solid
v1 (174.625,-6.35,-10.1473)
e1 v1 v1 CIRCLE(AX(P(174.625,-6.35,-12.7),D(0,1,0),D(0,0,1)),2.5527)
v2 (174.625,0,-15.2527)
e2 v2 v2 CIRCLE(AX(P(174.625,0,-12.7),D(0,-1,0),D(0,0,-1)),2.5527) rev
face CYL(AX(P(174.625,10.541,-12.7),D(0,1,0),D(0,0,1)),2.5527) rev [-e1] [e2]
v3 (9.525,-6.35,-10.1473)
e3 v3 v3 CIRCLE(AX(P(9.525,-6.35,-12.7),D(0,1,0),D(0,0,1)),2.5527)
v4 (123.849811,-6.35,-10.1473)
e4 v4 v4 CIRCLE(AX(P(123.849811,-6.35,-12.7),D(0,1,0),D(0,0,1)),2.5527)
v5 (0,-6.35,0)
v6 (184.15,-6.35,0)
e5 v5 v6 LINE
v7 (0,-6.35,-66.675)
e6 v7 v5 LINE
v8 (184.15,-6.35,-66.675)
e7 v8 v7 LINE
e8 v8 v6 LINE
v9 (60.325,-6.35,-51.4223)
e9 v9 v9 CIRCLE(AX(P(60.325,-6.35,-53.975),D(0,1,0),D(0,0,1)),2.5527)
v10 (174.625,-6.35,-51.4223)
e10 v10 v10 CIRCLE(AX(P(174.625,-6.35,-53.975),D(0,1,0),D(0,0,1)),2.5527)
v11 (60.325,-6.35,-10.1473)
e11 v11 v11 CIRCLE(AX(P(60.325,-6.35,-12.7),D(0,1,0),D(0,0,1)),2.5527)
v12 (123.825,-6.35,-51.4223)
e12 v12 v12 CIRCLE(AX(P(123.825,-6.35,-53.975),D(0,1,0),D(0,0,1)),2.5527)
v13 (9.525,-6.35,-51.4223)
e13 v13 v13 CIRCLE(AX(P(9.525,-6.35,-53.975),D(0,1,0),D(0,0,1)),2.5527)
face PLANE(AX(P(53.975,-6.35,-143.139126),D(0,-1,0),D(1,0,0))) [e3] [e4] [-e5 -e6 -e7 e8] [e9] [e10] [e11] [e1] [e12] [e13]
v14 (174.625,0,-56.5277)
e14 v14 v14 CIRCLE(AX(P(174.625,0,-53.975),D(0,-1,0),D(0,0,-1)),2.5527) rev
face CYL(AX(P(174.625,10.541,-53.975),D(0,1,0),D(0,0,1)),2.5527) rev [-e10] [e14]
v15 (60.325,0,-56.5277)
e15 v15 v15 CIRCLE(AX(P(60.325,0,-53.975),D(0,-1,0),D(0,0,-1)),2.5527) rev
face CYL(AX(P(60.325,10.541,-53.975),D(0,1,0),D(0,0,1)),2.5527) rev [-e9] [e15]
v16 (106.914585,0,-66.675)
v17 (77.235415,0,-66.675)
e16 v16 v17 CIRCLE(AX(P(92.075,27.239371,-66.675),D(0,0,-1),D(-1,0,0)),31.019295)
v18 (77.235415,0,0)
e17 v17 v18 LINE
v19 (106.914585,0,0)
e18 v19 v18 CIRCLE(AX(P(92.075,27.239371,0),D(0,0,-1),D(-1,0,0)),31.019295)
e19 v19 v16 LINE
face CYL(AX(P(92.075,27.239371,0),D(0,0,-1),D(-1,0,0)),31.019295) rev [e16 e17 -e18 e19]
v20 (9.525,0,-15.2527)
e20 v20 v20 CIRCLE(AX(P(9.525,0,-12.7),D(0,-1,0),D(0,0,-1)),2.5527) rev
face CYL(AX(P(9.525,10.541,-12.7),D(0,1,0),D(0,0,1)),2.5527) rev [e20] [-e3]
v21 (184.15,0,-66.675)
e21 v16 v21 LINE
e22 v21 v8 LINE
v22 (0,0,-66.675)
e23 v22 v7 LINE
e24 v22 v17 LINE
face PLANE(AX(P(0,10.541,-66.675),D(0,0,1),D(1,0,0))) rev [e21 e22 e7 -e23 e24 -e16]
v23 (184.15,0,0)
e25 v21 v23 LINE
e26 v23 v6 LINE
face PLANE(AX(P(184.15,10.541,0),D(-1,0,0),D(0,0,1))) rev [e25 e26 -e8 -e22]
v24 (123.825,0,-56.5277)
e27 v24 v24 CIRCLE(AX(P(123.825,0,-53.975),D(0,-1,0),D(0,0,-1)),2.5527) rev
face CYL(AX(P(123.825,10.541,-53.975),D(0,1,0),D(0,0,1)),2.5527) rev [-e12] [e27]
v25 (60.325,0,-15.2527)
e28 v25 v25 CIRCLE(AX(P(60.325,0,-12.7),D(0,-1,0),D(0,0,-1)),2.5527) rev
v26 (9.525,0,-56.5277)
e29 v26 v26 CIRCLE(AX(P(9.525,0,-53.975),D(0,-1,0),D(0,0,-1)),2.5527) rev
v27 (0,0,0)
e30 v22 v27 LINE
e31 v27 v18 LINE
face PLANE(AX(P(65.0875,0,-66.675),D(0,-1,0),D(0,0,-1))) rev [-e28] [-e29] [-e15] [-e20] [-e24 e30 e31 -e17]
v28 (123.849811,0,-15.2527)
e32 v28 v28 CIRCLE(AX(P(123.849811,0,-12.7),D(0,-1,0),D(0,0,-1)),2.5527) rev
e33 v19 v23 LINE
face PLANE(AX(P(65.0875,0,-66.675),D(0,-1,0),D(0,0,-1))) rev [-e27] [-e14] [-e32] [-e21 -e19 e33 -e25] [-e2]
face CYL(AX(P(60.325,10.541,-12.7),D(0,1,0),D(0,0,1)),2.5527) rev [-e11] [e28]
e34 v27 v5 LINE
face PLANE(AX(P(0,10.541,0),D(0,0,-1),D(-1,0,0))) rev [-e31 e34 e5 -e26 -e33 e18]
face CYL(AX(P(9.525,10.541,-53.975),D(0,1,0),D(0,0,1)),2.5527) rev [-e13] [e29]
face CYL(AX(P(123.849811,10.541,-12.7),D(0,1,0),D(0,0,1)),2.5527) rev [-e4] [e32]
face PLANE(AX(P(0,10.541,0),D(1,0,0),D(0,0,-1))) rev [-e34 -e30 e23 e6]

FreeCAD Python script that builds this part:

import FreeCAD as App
import Part
import Sketcher
Q = App.Units.Quantity


def add_polygon(sketch, points):
    """Adds a closed chain of lines whose ends are joined by coincident constraints."""
    first, n = sketch.GeometryCount, len(points)
    for a, b in zip(points, points[1:] + points[:1]):
        sketch.addGeometry(Part.LineSegment(App.Vector(*a, 0), App.Vector(*b, 0)), False)
    for i in range(n):
        sketch.addConstraint(Sketcher.Constraint("Coincident", first + i, 2, first + (i + 1) % n, 1))

doc = App.newDocument("Part")
body = doc.addObject("PartDesign::Body", "Body")

sketch1 = body.newObject("Sketcher::SketchObject", "Sketch")
sketch1.AttachmentSupport = (doc.getObject("XZ_Plane"), [""])
sketch1.MapMode = "FlatFace"
add_polygon(sketch1, [(0, -67), (0, 0), (184, 0), (184, -67)])
sketch1.addConstraint([
    Sketcher.Constraint("Vertical", 0),
    Sketcher.Constraint("Horizontal", 1),
    Sketcher.Constraint("Vertical", 2),
    Sketcher.Constraint("Horizontal", 3),
    Sketcher.Constraint("Coincident", 0, 2, -1, 1),
    Sketcher.Constraint("DistanceX", 1, 1, 1, 2, Q("7.25 in")),
    Sketcher.Constraint("DistanceY", 0, 1, 0, 2, Q("2.625 in")),
])
pad1 = body.newObject("PartDesign::Pad", "Pad")
pad1.Profile = sketch1
pad1.Length = Q("0.415 in")
pad1.Reversed = True

sketch2 = body.newObject("Sketcher::SketchObject", "Sketch001")
sketch2.AttachmentSupport = (doc.getObject("XY_Plane"), [""])
sketch2.MapMode = "FlatFace"
add_polygon(sketch2, [(54, 0), (54, -6), (130, -6), (130, 0)])
sketch2.addConstraint([
    Sketcher.Constraint("Vertical", 0),
    Sketcher.Constraint("Horizontal", 1),
    Sketcher.Constraint("Vertical", 2),
    Sketcher.Constraint("Horizontal", 3),
    Sketcher.Constraint("PointOnObject", 2, 2, -1),
    Sketcher.Constraint("DistanceX", 1, 1, 1, 2, Q("3 in")),
    Sketcher.Constraint("DistanceY", 0, 2, 0, 1, Q("0.25 in")),
    Sketcher.Constraint("DistanceX", -1, 1, 0, 2, Q("2.125 in")),
])
pad2 = body.newObject("PartDesign::Pad", "Pad001")
pad2.Profile = sketch2
pad2.Length = Q("2.625 in")
pad2.Reversed = True

sketch3 = body.newObject("Sketcher::SketchObject", "Sketch002")
sketch3.AttachmentSupport = (doc.getObject("XZ_Plane"), [""])
sketch3.MapMode = "FlatFace"
sketch3.AttachmentOffset = App.Placement(App.Vector(0, 0, -0.415 * 25.4), App.Rotation())
add_polygon(sketch3, [(65, -67), (65, 0), (119, 0), (119, -67)])
sketch3.addConstraint([
    Sketcher.Constraint("Vertical", 0),
    Sketcher.Constraint("Horizontal", 1),
    Sketcher.Constraint("Vertical", 2),
    Sketcher.Constraint("Horizontal", 3),
    Sketcher.Constraint("PointOnObject", 0, 2, -1),
    Sketcher.Constraint("DistanceX", 1, 1, 1, 2, Q("2.125 in")),
    Sketcher.Constraint("DistanceY", 0, 1, 0, 2, Q("2.625 in")),
    Sketcher.Constraint("DistanceX", -1, 1, 0, 2, Q("2.5625 in")),
])
pocket1 = body.newObject("PartDesign::Pocket", "Pocket")
pocket1.Profile = sketch3
pocket1.Length = Q("0.375 in")
pocket1.Reversed = True

sketch4 = body.newObject("Sketcher::SketchObject", "Sketch003")
sketch4.AttachmentSupport = (doc.getObject("XY_Plane"), [""])
sketch4.MapMode = "FlatFace"
add_polygon(sketch4, [(130, 0), (130, -6), (184, -6), (184, 0)])
sketch4.addConstraint([
    Sketcher.Constraint("Vertical", 0),
    Sketcher.Constraint("Horizontal", 1),
    Sketcher.Constraint("Vertical", 2),
    Sketcher.Constraint("Horizontal", 3),
    Sketcher.Constraint("PointOnObject", 2, 2, -1),
    Sketcher.Constraint("DistanceY", 0, 2, 0, 1, Q("0.25 in")),
    Sketcher.Constraint("DistanceX", 1, 1, 1, 2, Q("2.125 in")),
    Sketcher.Constraint("DistanceX", -1, 1, 1, 2, Q("7.25 in")),
])
pad3 = body.newObject("PartDesign::Pad", "Pad002")
pad3.Profile = sketch4
pad3.Length = Q("2.625 in")
pad3.Reversed = True

sketch5 = body.newObject("Sketcher::SketchObject", "Sketch004")
sketch5.AttachmentSupport = (doc.getObject("XZ_Plane"), [""])
sketch5.MapMode = "FlatFace"
sketch5.AttachmentOffset = App.Placement(App.Vector(0, 0, -0.415 * 25.4), App.Rotation())
sketch5.addGeometry([
    Part.Circle(App.Vector(9.5, -54, 0), App.Vector(0, 0, 1), 2.6),
    Part.Circle(App.Vector(9.5, -12.7, 0), App.Vector(0, 0, 1), 2.6),
    Part.Circle(App.Vector(60.3, -12.7, 0), App.Vector(0, 0, 1), 2.6),
    Part.Circle(App.Vector(60.3, -54, 0), App.Vector(0, 0, 1), 2.6),
    Part.Circle(App.Vector(123.8, -54, 0), App.Vector(0, 0, 1), 2.6),
    Part.Circle(App.Vector(123.8, -12.7, 0), App.Vector(0, 0, 1), 2.6),
    Part.Circle(App.Vector(174.6, -12.7, 0), App.Vector(0, 0, 1), 2.6),
    Part.Circle(App.Vector(174.6, -54, 0), App.Vector(0, 0, 1), 2.6),
], False)
sketch5.addConstraint([
    Sketcher.Constraint("Equal", 0, 1),
    Sketcher.Constraint("Equal", 1, 2),
    Sketcher.Constraint("Equal", 2, 3),
    Sketcher.Constraint("Equal", 3, 4),
    Sketcher.Constraint("Equal", 4, 5),
    Sketcher.Constraint("Equal", 5, 6),
    Sketcher.Constraint("Equal", 6, 7),
    Sketcher.Constraint("Horizontal", 1, 3, 2, 3),
    Sketcher.Constraint("Horizontal", 0, 3, 3, 3),
    Sketcher.Constraint("Horizontal", 3, 3, 4, 3),
    Sketcher.Constraint("Horizontal", 2, 3, 5, 3),
    Sketcher.Constraint("Horizontal", 5, 3, 6, 3),
    Sketcher.Constraint("Horizontal", 4, 3, 7, 3),
    Sketcher.Constraint("Vertical", 0, 3, 1, 3),
    Sketcher.Constraint("Vertical", 2, 3, 3, 3),
    Sketcher.Constraint("Vertical", 6, 3, 7, 3),
    Sketcher.Constraint("Diameter", 0, Q("0.201 in")),
    Sketcher.Constraint("DistanceX", 1, 3, 2, 3, Q("2 in")),
    Sketcher.Constraint("DistanceX", 4, 3, 6, 3, Q("2 in")),
    Sketcher.Constraint("DistanceY", 1, 3, -1, 1, Q("0.5 in")),
    Sketcher.Constraint("DistanceX", 3, 3, 4, 3, Q("2.5 in")),
    Sketcher.Constraint("DistanceX", -1, 1, 0, 3, Q("0.375 in")),
    Sketcher.Constraint("DistanceY", 0, 3, -1, 1, Q("2.125 in")),
    Sketcher.Constraint("DistanceX", -1, 1, 5, 3, 123.849811),
])
doc.recompute()
hole = body.newObject("PartDesign::Hole", "Hole")
hole.Profile = sketch5
hole.ThreadType = "None"
hole.Diameter = Q("0.201 in")
hole.DepthType = "ThroughAll"
hole.Reversed = True

sketch6 = body.newObject("Sketcher::SketchObject", "Sketch005")
sketch6.AttachmentSupport = (doc.getObject("XY_Plane"), [""])
sketch6.MapMode = "FlatFace"
sketch6.AttachmentOffset = App.Placement(App.Vector(0, 0, -2.625 * 25.4), App.Rotation())
sketch6.addGeometry(Part.Circle(App.Vector(92, 27, 0), App.Vector(0, 0, 1), 31), False)
sketch6.addConstraint([
    Sketcher.Constraint("Diameter", 0, 62.038589),
    Sketcher.Constraint("DistanceX", -1, 1, 0, 3, Q("3.625 in")),
    Sketcher.Constraint("DistanceY", -1, 1, 0, 3, 27.239371),
])
pocket2 = body.newObject("PartDesign::Pocket", "Pocket001")
pocket2.Profile = sketch6
pocket2.Type = "ThroughAll"
pocket2.Reversed = True

sketch7 = body.newObject("Sketcher::SketchObject", "Sketch006")
sketch7.AttachmentSupport = (doc.getObject("XY_Plane"), [""])
sketch7.MapMode = "FlatFace"
add_polygon(sketch7, [(0, 0), (0, -6), (54, -6), (54, 0)])
sketch7.addConstraint([
    Sketcher.Constraint("Vertical", 0),
    Sketcher.Constraint("Horizontal", 1),
    Sketcher.Constraint("Vertical", 2),
    Sketcher.Constraint("Horizontal", 3),
    Sketcher.Constraint("Coincident", 3, 2, -1, 1),
    Sketcher.Constraint("DistanceY", 0, 2, 0, 1, Q("0.25 in")),
    Sketcher.Constraint("DistanceX", 1, 1, 1, 2, Q("2.125 in")),
])
pad4 = body.newObject("PartDesign::Pad", "Pad003")
pad4.Profile = sketch7
pad4.Length = Q("2.625 in")
pad4.Reversed = True

sketch8 = body.newObject("Sketcher::SketchObject", "Sketch007")
sketch8.AttachmentSupport = (doc.getObject("XY_Plane"), [""])
sketch8.MapMode = "FlatFace"
add_polygon(sketch8, [(65.1, 1), (65.1, 0), (119.1, 0), (119.1, 1)])
sketch8.addConstraint([
    Sketcher.Constraint("Vertical", 0),
    Sketcher.Constraint("Horizontal", 1),
    Sketcher.Constraint("Vertical", 2),
    Sketcher.Constraint("Horizontal", 3),
    Sketcher.Constraint("PointOnObject", 0, 2, -1),
    Sketcher.Constraint("DistanceY", 0, 2, 0, 1, Q("0.04 in")),
    Sketcher.Constraint("DistanceX", 1, 1, 1, 2, Q("2.125 in")),
    Sketcher.Constraint("DistanceX", -1, 1, 0, 2, Q("2.5625 in")),
])
pocket3 = body.newObject("PartDesign::Pocket", "Pocket002")
pocket3.Profile = sketch8
pocket3.Type = "ThroughAll"

sketch9 = body.newObject("Sketcher::SketchObject", "Sketch008")
sketch9.AttachmentSupport = (doc.getObject("XZ_Plane"), [""])
sketch9.MapMode = "FlatFace"
sketch9.addGeometry([
    Part.Circle(App.Vector(9.5, -12.7, 0), App.Vector(0, 0, 1), 2.6),
    Part.Circle(App.Vector(9.5, -54, 0), App.Vector(0, 0, 1), 2.6),
], False)
sketch9.addConstraint([
    Sketcher.Constraint("Equal", 0, 1),
    Sketcher.Constraint("Vertical", 0, 3, 1, 3),
    Sketcher.Constraint("Diameter", 0, Q("0.201 in")),
    Sketcher.Constraint("DistanceY", 0, 3, -1, 1, Q("0.5 in")),
    Sketcher.Constraint("DistanceX", -1, 1, 0, 3, Q("0.375 in")),
    Sketcher.Constraint("DistanceY", 1, 3, -1, 1, Q("2.125 in")),
])
pocket4 = body.newObject("PartDesign::Pocket", "Pocket003")
pocket4.Profile = sketch9
pocket4.Type = "ThroughAll"
pocket4.Reversed = True

sketch10 = body.newObject("Sketcher::SketchObject", "Sketch009")
sketch10.AttachmentSupport = (doc.getObject("XY_Plane"), [""])
sketch10.MapMode = "FlatFace"
add_polygon(sketch10, [(0, 11), (0, 0), (184, 0), (184, 11)])
sketch10.addConstraint([
    Sketcher.Constraint("Vertical", 0),
    Sketcher.Constraint("Horizontal", 1),
    Sketcher.Constraint("Vertical", 2),
    Sketcher.Constraint("Horizontal", 3),
    Sketcher.Constraint("Coincident", 0, 2, -1, 1),
    Sketcher.Constraint("DistanceX", 1, 1, 1, 2, Q("7.25 in")),
    Sketcher.Constraint("DistanceY", 0, 2, 0, 1, Q("0.415 in")),
])
pocket5 = body.newObject("PartDesign::Pocket", "Pocket004")
pocket5.Profile = sketch10
pocket5.Type = "ThroughAll"

doc.recompute()
